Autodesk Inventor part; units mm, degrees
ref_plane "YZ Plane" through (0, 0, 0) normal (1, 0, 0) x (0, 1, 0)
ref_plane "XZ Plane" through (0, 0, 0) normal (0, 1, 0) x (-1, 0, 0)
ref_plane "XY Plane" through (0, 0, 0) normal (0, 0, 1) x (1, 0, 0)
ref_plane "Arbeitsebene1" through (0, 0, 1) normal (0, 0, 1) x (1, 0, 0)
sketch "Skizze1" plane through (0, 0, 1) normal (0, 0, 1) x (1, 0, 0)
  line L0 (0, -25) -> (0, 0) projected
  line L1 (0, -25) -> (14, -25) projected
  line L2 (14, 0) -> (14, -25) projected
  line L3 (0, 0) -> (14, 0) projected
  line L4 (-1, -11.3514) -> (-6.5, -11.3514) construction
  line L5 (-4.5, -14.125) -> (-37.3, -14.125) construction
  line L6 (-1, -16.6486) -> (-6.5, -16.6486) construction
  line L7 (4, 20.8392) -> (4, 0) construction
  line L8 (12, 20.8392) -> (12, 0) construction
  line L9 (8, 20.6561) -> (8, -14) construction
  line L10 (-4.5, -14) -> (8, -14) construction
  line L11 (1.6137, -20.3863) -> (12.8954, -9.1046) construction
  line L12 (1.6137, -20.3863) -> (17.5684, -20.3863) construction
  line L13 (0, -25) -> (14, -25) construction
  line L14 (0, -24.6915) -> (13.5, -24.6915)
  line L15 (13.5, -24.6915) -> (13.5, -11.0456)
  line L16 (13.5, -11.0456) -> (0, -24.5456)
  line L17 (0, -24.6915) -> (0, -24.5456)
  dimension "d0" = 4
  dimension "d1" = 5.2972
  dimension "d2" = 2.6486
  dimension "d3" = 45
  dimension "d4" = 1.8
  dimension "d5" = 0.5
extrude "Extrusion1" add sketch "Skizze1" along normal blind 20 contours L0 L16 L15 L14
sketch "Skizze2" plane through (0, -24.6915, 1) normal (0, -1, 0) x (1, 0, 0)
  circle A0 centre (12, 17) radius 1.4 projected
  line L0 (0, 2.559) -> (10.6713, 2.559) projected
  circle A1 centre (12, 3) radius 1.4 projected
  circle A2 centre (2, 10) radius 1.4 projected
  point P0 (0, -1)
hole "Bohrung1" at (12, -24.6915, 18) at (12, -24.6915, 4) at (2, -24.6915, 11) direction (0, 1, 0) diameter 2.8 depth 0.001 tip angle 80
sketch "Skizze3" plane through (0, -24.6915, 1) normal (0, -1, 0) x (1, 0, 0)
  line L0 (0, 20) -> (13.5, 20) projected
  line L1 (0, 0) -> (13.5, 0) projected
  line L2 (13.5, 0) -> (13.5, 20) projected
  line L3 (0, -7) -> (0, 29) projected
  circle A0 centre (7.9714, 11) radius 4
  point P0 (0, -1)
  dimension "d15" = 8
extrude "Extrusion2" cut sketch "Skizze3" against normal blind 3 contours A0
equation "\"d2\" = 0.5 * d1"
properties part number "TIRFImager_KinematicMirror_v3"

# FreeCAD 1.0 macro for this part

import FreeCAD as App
import Part
import Sketcher
from FreeCAD import Vector
Q = App.Units.Quantity


def add_polygon(sketch, points):
    """Adds a closed chain of lines whose ends are joined by coincident constraints."""
    first, n = sketch.GeometryCount, len(points)
    for a, b in zip(points, points[1:] + points[:1]):
        sketch.addGeometry(Part.LineSegment(App.Vector(*a, 0), App.Vector(*b, 0)), False)
    for i in range(n):
        sketch.addConstraint(Sketcher.Constraint("Coincident", first + i, 2, first + (i + 1) % n, 1))

doc = App.newDocument("Part")
body = doc.addObject("PartDesign::Body", "Body")

sketch1 = body.newObject("Sketcher::SketchObject", "Sketch")
sketch1.AttachmentSupport = (doc.getObject("XY_Plane"), [""])
sketch1.MapMode = "FlatFace"
sketch1.AttachmentOffset = App.Placement(Vector(0, 0, 1), App.Rotation())
add_polygon(sketch1, [(0, -24.5456), (0, -24.6915), (13.5, -24.6915), (13.5, -11.0456)])
sketch1.addConstraint([
    Sketcher.Constraint("Vertical", 0),
    Sketcher.Constraint("Horizontal", 1),
    Sketcher.Constraint("Vertical", 2),
    Sketcher.Constraint("PointOnObject", 0, 2, -2),
    Sketcher.Constraint("Angle", 3, Q("-135 deg")),
    Sketcher.Constraint("DistanceX", 1, 1, 1, 2, Q("13.5 mm")),
    Sketcher.Constraint("DistanceY", 0, 2, 0, 1, Q("0.146 mm")),
    Sketcher.Constraint("DistanceY", 0, 2, -1, 1, Q("24.6915 mm")),
])
pad1 = body.newObject("PartDesign::Pad", "Pad")
pad1.Profile = sketch1
pad1.Length = 20

sketch2 = body.newObject("Sketcher::SketchObject", "Sketch001")
sketch2.AttachmentSupport = (doc.getObject("XZ_Plane"), [""])
sketch2.MapMode = "FlatFace"
sketch2.AttachmentOffset = App.Placement(Vector(0, 0, 24.6915), App.Rotation())
sketch2.addGeometry([
    Part.Circle(Vector(12, 18, 0), Vector(0, 0, 1), 1.4),
    Part.Circle(Vector(12, 4, 0), Vector(0, 0, 1), 1.4),
    Part.Circle(Vector(2, 11, 0), Vector(0, 0, 1), 1.4),
], False)
sketch2.addConstraint([
    Sketcher.Constraint("Equal", 0, 1),
    Sketcher.Constraint("Equal", 1, 2),
    Sketcher.Constraint("Vertical", 0, 3, 1, 3),
    Sketcher.Constraint("Diameter", 0, Q("2.8 mm")),
    Sketcher.Constraint("DistanceX", -1, 1, 0, 3, Q("12 mm")),
    Sketcher.Constraint("DistanceY", -1, 1, 0, 3, Q("18 mm")),
    Sketcher.Constraint("DistanceY", -1, 1, 1, 3, Q("4 mm")),
    Sketcher.Constraint("DistanceX", -1, 1, 2, 3, Q("2 mm")),
    Sketcher.Constraint("DistanceY", -1, 1, 2, 3, Q("11 mm")),
])
doc.recompute()
hole = body.newObject("PartDesign::Hole", "Hole")
hole.Profile = sketch2
hole.ThreadType = "None"
hole.Diameter = 2.8
hole.DepthType = "Dimension"
hole.Depth = 0.001
hole.DrillPoint = "Angled"
hole.DrillPointAngle = 80

sketch3 = body.newObject("Sketcher::SketchObject", "Sketch002")
sketch3.AttachmentSupport = (doc.getObject("XZ_Plane"), [""])
sketch3.MapMode = "FlatFace"
sketch3.AttachmentOffset = App.Placement(Vector(0, 0, 24.6915), App.Rotation())
sketch3.addGeometry(Part.Circle(Vector(7.9714, 12, 0), Vector(0, 0, 1), 4), False)
sketch3.addConstraint([
    Sketcher.Constraint("Diameter", 0, Q("8 mm")),
    Sketcher.Constraint("DistanceY", -1, 1, 0, 3, Q("12 mm")),
    Sketcher.Constraint("DistanceX", -1, 1, 0, 3, Q("7.9714 mm")),
])
pocket1 = body.newObject("PartDesign::Pocket", "Pocket")
pocket1.Profile = sketch3
pocket1.Length = 3

doc.recompute()
